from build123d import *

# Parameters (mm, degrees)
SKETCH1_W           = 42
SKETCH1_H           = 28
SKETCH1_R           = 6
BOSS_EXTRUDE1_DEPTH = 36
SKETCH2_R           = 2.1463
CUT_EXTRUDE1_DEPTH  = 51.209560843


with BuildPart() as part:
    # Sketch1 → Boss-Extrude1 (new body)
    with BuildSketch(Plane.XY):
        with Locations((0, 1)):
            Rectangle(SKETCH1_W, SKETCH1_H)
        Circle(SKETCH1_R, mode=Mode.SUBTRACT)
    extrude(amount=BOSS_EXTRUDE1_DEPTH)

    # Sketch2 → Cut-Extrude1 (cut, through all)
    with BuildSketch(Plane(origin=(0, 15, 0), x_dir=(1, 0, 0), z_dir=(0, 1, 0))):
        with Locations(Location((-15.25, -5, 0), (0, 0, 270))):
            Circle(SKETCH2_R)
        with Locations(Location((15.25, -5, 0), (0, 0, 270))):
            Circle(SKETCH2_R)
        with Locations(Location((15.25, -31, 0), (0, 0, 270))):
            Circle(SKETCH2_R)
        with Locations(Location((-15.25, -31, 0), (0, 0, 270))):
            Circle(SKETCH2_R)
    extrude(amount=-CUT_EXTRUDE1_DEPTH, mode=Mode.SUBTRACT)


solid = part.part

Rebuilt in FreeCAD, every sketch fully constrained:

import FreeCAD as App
import Part
import Sketcher

V = App.Vector
Q = App.Units.Quantity

doc = App.newDocument("Part")
body = doc.addObject("PartDesign::Body", "Body")

# Sketch on XY plane
sketch1 = body.newObject("Sketcher::SketchObject", "Sketch")
sketch1.AttachmentSupport = (doc.getObject("XY_Plane"), [""])
sketch1.MapMode = "FlatFace"
sketch1.addGeometry([
    Part.LineSegment(V(-21, 15, 0), V(-21, -13, 0)),  # 0
    Part.LineSegment(V(-21, -13, 0), V(21, -13, 0)),  # 1
    Part.LineSegment(V(21, -13, 0), V(21, 15, 0)),  # 2
    Part.LineSegment(V(21, 15, 0), V(-21, 15, 0)),  # 3
    Part.Circle(V(0, 0, 0), V(0, 0, 1), 6),  # 4
], False)
sketch1.addConstraint([
    Sketcher.Constraint("Coincident", 0, 2, 1, 1),
    Sketcher.Constraint("Coincident", 1, 2, 2, 1),
    Sketcher.Constraint("Coincident", 2, 2, 3, 1),
    Sketcher.Constraint("Coincident", 3, 2, 0, 1),
    Sketcher.Constraint("Vertical", 0),
    Sketcher.Constraint("Horizontal", 1),
    Sketcher.Constraint("Vertical", 2),
    Sketcher.Constraint("Horizontal", 3),
    Sketcher.Constraint("Coincident", 4, 3, -1, 1),
    Sketcher.Constraint("Diameter", 4, Q("12 mm")),
    Sketcher.Constraint("DistanceX", 1, 1, 1, 2, Q("42 mm")),
    Sketcher.Constraint("DistanceY", 0, 2, 0, 1, Q("28 mm")),
    Sketcher.Constraint("DistanceX", 0, 2, -1, 1, Q("21 mm")),
    Sketcher.Constraint("DistanceY", 0, 2, -1, 1, Q("13 mm")),
])
pad1 = body.newObject("PartDesign::Pad", "Pad")
pad1.Profile = sketch1
pad1.Length = 36

# Sketch on XZ plane
sketch2 = body.newObject("Sketcher::SketchObject", "Sketch001")
sketch2.AttachmentSupport = (doc.getObject("XZ_Plane"), [""])
sketch2.MapMode = "FlatFace"
sketch2.AttachmentOffset = App.Placement(V(0, 0, -15), App.Rotation())
sketch2.addGeometry([
    Part.Circle(V(-15.2, 5, 0), V(0, 0, 1), 2.1),
    Part.Circle(V(15.2, 5, 0), V(0, 0, 1), 2.1),
    Part.Circle(V(15.2, 31, 0), V(0, 0, 1), 2.1),
    Part.Circle(V(-15.2, 31, 0), V(0, 0, 1), 2.1),
], False)
sketch2.addConstraint([
    Sketcher.Constraint("Equal", 0, 1),
    Sketcher.Constraint("Equal", 1, 2),
    Sketcher.Constraint("Equal", 2, 3),
    Sketcher.Constraint("Symmetric", 0, 3, 1, 3, -2),
    Sketcher.Constraint("Symmetric", 2, 3, 3, 3, -2),
    Sketcher.Constraint("Vertical", 1, 3, 2, 3),
    Sketcher.Constraint("DistanceY", -1, 1, 0, 3, Q("5 mm")),
    Sketcher.Constraint("DistanceY", -1, 1, 2, 3, Q("31 mm")),
    Sketcher.Constraint("Diameter", 0, Q("4.2926 mm")),
    Sketcher.Constraint("DistanceX", 0, 3, 1, 3, Q("30.5 mm")),
])
pocket1 = body.newObject("PartDesign::Pocket", "Pocket")
pocket1.Profile = sketch2
pocket1.Type = "ThroughAll"
pocket1.Reversed = True

doc.recompute()
